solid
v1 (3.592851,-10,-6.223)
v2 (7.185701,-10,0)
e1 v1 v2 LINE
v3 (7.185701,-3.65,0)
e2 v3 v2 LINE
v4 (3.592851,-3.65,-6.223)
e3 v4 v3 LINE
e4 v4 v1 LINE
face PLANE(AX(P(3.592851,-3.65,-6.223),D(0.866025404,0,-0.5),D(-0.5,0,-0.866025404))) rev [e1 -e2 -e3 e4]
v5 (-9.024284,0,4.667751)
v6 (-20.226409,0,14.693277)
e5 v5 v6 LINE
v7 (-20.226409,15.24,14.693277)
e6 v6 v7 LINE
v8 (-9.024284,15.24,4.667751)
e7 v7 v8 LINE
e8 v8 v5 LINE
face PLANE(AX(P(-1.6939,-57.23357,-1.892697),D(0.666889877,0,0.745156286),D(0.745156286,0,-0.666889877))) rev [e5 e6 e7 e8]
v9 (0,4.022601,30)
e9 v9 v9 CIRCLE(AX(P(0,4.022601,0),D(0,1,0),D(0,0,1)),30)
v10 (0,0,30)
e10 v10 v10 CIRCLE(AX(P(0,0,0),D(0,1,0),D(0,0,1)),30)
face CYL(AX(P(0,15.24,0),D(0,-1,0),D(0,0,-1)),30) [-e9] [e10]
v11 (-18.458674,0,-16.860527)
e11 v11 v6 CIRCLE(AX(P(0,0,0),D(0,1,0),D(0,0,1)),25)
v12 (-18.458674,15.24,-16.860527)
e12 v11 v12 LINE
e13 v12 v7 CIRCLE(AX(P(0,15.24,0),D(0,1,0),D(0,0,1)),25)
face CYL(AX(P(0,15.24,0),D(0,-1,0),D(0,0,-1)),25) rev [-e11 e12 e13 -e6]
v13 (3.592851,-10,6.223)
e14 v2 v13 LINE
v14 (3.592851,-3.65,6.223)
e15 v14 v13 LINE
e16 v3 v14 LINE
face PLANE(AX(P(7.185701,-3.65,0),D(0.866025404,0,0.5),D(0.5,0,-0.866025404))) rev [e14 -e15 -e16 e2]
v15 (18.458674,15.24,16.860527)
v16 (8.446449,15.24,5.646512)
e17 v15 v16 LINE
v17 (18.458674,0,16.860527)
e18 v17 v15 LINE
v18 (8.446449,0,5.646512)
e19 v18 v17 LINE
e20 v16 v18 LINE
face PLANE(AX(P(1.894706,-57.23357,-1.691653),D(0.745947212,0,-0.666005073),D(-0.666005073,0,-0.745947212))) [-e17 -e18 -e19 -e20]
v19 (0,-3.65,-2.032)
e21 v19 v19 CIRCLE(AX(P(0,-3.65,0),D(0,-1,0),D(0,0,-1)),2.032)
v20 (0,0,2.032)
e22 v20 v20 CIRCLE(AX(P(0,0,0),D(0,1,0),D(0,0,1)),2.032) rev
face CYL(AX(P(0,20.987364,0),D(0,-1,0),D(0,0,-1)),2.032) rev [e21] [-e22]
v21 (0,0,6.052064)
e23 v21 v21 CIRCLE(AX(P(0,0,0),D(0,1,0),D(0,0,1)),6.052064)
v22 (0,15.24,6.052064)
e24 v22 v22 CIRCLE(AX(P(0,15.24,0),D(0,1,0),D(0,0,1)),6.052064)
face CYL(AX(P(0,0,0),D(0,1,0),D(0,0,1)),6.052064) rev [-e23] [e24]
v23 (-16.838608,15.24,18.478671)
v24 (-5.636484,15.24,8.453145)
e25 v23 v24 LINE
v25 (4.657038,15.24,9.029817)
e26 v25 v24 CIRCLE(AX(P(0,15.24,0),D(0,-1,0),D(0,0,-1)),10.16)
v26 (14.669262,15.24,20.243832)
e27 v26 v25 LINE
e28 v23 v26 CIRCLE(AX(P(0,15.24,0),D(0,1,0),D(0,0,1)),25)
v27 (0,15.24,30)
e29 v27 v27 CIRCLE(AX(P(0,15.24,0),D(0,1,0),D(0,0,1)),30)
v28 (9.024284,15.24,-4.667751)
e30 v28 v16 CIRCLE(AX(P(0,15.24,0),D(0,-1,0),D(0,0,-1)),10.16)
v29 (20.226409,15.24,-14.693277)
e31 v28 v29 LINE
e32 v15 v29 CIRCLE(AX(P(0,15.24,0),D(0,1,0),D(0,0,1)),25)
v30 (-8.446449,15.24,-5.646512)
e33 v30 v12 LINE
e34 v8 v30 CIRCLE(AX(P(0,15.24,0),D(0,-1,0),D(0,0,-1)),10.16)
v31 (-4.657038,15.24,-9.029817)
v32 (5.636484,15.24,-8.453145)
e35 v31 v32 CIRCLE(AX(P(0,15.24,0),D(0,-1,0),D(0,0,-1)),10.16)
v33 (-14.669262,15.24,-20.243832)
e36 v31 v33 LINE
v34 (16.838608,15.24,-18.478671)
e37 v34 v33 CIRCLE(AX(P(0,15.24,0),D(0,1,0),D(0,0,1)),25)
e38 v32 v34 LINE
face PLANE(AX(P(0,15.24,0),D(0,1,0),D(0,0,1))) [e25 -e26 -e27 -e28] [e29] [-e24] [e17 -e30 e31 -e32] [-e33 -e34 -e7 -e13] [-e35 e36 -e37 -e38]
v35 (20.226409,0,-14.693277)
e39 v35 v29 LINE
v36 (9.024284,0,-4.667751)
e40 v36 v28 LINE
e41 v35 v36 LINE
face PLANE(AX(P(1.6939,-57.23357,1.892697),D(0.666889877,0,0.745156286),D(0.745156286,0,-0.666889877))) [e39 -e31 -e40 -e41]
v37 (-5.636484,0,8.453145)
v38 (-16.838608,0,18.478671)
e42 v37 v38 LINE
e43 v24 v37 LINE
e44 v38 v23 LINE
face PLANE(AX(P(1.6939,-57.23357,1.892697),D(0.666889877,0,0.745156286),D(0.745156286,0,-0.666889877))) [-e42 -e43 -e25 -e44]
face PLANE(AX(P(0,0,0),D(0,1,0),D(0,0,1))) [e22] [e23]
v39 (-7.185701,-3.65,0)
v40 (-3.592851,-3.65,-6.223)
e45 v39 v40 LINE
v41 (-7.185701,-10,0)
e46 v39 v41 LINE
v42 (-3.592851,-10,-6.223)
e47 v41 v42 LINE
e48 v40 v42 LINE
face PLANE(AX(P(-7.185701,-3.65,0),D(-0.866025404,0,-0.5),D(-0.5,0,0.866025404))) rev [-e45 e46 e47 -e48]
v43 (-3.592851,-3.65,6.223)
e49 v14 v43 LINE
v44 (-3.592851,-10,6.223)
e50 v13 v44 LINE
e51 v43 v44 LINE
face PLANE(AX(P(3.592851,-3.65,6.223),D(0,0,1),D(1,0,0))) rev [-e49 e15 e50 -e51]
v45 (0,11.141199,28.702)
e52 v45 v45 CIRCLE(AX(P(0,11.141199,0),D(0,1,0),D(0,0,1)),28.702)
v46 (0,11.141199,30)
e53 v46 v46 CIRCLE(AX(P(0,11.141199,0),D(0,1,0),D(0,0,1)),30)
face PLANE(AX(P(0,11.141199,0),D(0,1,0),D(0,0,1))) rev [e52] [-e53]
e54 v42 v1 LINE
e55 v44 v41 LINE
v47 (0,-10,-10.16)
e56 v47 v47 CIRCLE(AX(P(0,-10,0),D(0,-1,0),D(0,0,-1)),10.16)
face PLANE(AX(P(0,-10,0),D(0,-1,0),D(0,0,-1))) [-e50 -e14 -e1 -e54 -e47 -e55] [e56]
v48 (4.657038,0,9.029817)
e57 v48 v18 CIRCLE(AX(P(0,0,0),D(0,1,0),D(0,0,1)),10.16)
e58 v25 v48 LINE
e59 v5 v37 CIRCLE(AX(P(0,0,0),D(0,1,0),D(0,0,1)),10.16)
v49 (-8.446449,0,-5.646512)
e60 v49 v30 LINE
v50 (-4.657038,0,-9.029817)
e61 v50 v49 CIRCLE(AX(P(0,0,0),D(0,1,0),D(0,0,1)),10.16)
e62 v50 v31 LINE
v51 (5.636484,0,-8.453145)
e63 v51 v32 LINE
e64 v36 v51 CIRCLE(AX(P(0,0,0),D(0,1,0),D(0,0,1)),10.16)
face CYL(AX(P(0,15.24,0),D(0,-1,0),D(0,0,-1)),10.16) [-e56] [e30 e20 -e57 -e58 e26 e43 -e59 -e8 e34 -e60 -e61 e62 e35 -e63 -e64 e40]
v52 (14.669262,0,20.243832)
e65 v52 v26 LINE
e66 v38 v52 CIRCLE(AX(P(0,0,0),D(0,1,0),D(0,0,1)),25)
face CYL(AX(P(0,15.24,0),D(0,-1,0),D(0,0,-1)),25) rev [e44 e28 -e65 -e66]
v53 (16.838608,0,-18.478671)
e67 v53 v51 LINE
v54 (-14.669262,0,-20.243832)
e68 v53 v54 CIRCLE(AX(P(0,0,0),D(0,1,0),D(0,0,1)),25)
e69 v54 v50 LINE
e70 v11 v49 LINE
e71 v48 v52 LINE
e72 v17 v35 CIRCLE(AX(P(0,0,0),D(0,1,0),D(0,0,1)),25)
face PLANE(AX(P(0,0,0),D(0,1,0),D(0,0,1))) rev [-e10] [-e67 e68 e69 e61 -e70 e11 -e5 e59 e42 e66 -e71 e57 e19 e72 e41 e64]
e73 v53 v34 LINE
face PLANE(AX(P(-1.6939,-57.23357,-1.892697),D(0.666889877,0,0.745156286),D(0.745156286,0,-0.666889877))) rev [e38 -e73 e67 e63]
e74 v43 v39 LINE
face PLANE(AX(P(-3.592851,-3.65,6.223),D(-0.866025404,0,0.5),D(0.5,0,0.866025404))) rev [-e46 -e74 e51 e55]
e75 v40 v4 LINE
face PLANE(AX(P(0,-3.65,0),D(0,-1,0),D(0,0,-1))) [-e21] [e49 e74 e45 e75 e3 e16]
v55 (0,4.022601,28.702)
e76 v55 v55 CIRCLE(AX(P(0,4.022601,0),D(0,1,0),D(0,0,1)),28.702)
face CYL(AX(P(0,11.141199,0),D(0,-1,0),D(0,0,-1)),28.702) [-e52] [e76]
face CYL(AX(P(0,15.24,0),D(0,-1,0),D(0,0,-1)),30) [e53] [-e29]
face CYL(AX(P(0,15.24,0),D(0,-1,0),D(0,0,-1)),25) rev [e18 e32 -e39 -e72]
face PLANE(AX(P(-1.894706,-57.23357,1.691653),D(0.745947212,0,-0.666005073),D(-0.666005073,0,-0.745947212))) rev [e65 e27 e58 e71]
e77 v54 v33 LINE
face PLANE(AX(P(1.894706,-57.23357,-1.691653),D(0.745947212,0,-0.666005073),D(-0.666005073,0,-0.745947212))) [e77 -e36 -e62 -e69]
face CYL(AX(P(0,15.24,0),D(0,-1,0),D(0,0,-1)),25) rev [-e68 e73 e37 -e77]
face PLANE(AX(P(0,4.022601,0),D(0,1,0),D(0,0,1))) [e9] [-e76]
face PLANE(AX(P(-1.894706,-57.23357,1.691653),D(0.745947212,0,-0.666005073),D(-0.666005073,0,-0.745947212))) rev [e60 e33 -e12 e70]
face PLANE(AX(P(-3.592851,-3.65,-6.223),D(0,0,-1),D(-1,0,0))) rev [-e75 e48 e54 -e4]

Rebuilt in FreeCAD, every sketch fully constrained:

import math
import FreeCAD as App
import Part
import Sketcher
Q = App.Units.Quantity


def add_polygon(sketch, points):
    """Adds a closed chain of lines whose ends are joined by coincident constraints."""
    first, n = sketch.GeometryCount, len(points)
    for a, b in zip(points, points[1:] + points[:1]):
        sketch.addGeometry(Part.LineSegment(App.Vector(*a, 0), App.Vector(*b, 0)), False)
    for i in range(n):
        sketch.addConstraint(Sketcher.Constraint("Coincident", first + i, 2, first + (i + 1) % n, 1))

doc = App.newDocument("Part")
body = doc.addObject("PartDesign::Body", "Body")

# Sketch on XZ plane
sketch1 = body.newObject("Sketcher::SketchObject", "Sketch")
sketch1.AttachmentSupport = (doc.getObject("XZ_Plane"), [""])
sketch1.MapMode = "FlatFace"
sketch1.addGeometry([
    Part.Circle(App.Vector(0, 0, 0), App.Vector(0, 0, 1), 30),
    Part.Circle(App.Vector(0, 0, 0), App.Vector(0, 0, 1), 25),
], False)
sketch1.addConstraint([
    Sketcher.Constraint("Coincident", 0, 3, -1, 1),
    Sketcher.Constraint("Coincident", 1, 3, -1, 1),
    Sketcher.Constraint("Diameter", 0, 60.0),
    Sketcher.Constraint("Diameter", 1, 50.0),
])
pad1 = body.newObject("PartDesign::Pad", "Pad")
pad1.Profile = sketch1
pad1.Length = Q("0.6 in")
pad1.Reversed = True

# Sketch on XZ plane
sketch2 = body.newObject("Sketcher::SketchObject", "Sketch001")
sketch2.AttachmentSupport = (doc.getObject("XZ_Plane"), [""])
sketch2.MapMode = "FlatFace"
sketch2.AttachmentOffset = App.Placement(App.Vector(0, 0, -0.6 * 25.4), App.Rotation())
sketch2.addGeometry([
    Part.LineSegment(App.Vector(4, 0, 0), App.Vector(20, -15, 0)),  # 0
    Part.ArcOfCircle(Part.Circle(App.Vector(0, 0, 0), App.Vector(0, 0, 1), 25), math.radians(-47.66), math.radians(-36)),  # 1
    Part.LineSegment(App.Vector(17, -18, 0), App.Vector(0, -4, 0)),  # 2
    Part.LineSegment(App.Vector(0, -4, 0), App.Vector(-15, -20, 0)),  # 3
    Part.ArcOfCircle(Part.Circle(App.Vector(0, 0, 0), App.Vector(0, 0, 1), 25), math.radians(-137.59), math.radians(-125.93)),  # 4
    Part.LineSegment(App.Vector(-18, -17, 0), App.Vector(-4, 0, 0)),  # 5
    Part.LineSegment(App.Vector(-4, 0, 0), App.Vector(-20, 15, 0)),  # 6
    Part.ArcOfCircle(Part.Circle(App.Vector(0, 0, 0), App.Vector(0, 0, 1), 25), math.radians(132.34), math.radians(144)),  # 7
    Part.LineSegment(App.Vector(-17, 18, 0), App.Vector(0, 4, 0)),  # 8
    Part.LineSegment(App.Vector(0, 4, 0), App.Vector(15, 20, 0)),  # 9
    Part.ArcOfCircle(Part.Circle(App.Vector(0, 0, 0), App.Vector(0, 0, 1), 25), math.radians(42.41), math.radians(54.07)),  # 10
    Part.LineSegment(App.Vector(18, 17, 0), App.Vector(4, 0, 0)),  # 11
], False)
sketch2.addConstraint([
    Sketcher.Constraint("Coincident", 0, 2, 1, 2),
    Sketcher.Constraint("Coincident", 1, 1, 2, 1),
    Sketcher.Constraint("Coincident", 2, 2, 3, 1),
    Sketcher.Constraint("Coincident", 3, 2, 4, 2),
    Sketcher.Constraint("Coincident", 4, 1, 5, 1),
    Sketcher.Constraint("Coincident", 5, 2, 6, 1),
    Sketcher.Constraint("Coincident", 6, 2, 7, 2),
    Sketcher.Constraint("Coincident", 7, 1, 8, 1),
    Sketcher.Constraint("Coincident", 8, 2, 9, 1),
    Sketcher.Constraint("Coincident", 9, 2, 10, 2),
    Sketcher.Constraint("Coincident", 10, 1, 11, 1),
    Sketcher.Constraint("Coincident", 11, 2, 0, 1),
    Sketcher.Constraint("Coincident", 1, 3, -1, 1),
    Sketcher.Constraint("Coincident", 4, 3, -1, 1),
    Sketcher.Constraint("Coincident", 7, 3, -1, 1),
    Sketcher.Constraint("Coincident", 10, 3, -1, 1),
    Sketcher.Constraint("Equal", 1, 4),
    Sketcher.Constraint("Equal", 4, 7),
    Sketcher.Constraint("Equal", 7, 10),
    Sketcher.Constraint("Symmetric", 2, 2, 8, 2, -1, 1),
    Sketcher.Constraint("Symmetric", 5, 2, 11, 2, -1, 1),
    Sketcher.Constraint("Parallel", 0, 2),
    Sketcher.Constraint("Parallel", 3, 5),
    Sketcher.Constraint("Parallel", 2, 6),
    Sketcher.Constraint("Parallel", 6, 8),
    Sketcher.Constraint("Parallel", 5, 9),
    Sketcher.Constraint("Parallel", 9, 11),
    Sketcher.Constraint("Equal", 2, 3),
    Sketcher.Constraint("Equal", 0, 5),
    Sketcher.Constraint("Radius", 1, 25.0),
    Sketcher.Constraint("DistanceX", 1, 1, 0, 2, 3.387801),
    Sketcher.Constraint("DistanceX", -1, 1, 0, 2, 20.226409),
    Sketcher.Constraint("DistanceY", 2, 2, -1, 1, 3.588609),
    Sketcher.Constraint("DistanceX", 3, 2, 4, 3, 14.669262),
])
pad2 = body.newObject("PartDesign::Pad", "Pad001")
pad2.Profile = sketch2
pad2.Length = Q("0.6 in")

# Sketch on XZ plane
sketch3 = body.newObject("Sketcher::SketchObject", "Sketch002")
sketch3.AttachmentSupport = (doc.getObject("XZ_Plane"), [""])
sketch3.MapMode = "FlatFace"
sketch3.addGeometry(Part.Circle(App.Vector(0, 0, 0), App.Vector(0, 0, 1), 10), False)
sketch3.addConstraint([
    Sketcher.Constraint("Coincident", 0, 3, -1, 1),
    Sketcher.Constraint("Diameter", 0, Q("0.8 in")),
])
pad3 = body.newObject("PartDesign::Pad", "Pad002")
pad3.Profile = sketch3
pad3.Type = "TwoLengths"
pad3.Length = 10
pad3.Length2 = Q("0.6 in")

# Sketch on XZ plane
sketch4 = body.newObject("Sketcher::SketchObject", "Sketch003")
sketch4.AttachmentSupport = (doc.getObject("XZ_Plane"), [""])
sketch4.MapMode = "FlatFace"
sketch4.AttachmentOffset = App.Placement(App.Vector(0, 0, -0.4035 * 25.4), App.Rotation())
sketch4.addGeometry([
    Part.Circle(App.Vector(0, 0, 0), App.Vector(0, 0, 1), 38),
    Part.Circle(App.Vector(0, 0, 0), App.Vector(0, 0, 1), 29),
], False)
sketch4.addConstraint([
    Sketcher.Constraint("Coincident", 0, 3, -1, 1),
    Sketcher.Constraint("Coincident", 1, 3, -1, 1),
    Sketcher.Constraint("Diameter", 0, Q("3 in")),
    Sketcher.Constraint("Diameter", 1, Q("2.26 in")),
])
pocket1 = body.newObject("PartDesign::Pocket", "Pocket")
pocket1.Profile = sketch4
pocket1.Type = "TwoLengths"
pocket1.Length = 0.892299
pocket1.Length2 = 6.226299

# Sketch on XZ plane
sketch5 = body.newObject("Sketcher::SketchObject", "Sketch004")
sketch5.AttachmentSupport = (doc.getObject("XZ_Plane"), [""])
sketch5.MapMode = "FlatFace"
sketch5.AttachmentOffset = App.Placement(App.Vector(0, 0, 10), App.Rotation())
add_polygon(sketch5, [(7, 0), (4, 6), (-4, 6), (-7, 0), (-4, -6), (4, -6)])  # lines 0-5
sketch5.addConstraint([
    Sketcher.Constraint("Horizontal", 1),
    Sketcher.Constraint("Horizontal", 4),
    Sketcher.Constraint("Symmetric", 0, 2, 3, 2, -1, 1),
    Sketcher.Constraint("Symmetric", 2, 2, 5, 2, -1, 1),
    Sketcher.Constraint("PointOnObject", 2, 2, -1),
    Sketcher.Constraint("Parallel", 2, 5),
    Sketcher.Constraint("Vertical", 1, 2, 3, 2),
    Sketcher.Constraint("Angle", 0, Q("120 deg")),
    Sketcher.Constraint("DistanceY", 3, 2, 1, 2, Q("0.49 in")),
    Sketcher.Constraint("DistanceX", 1, 2, 1, 1, 7.185701),
])
pocket2 = body.newObject("PartDesign::Pocket", "Pocket001")
pocket2.Profile = sketch5
pocket2.Length = Q("0.25 in")

# Sketch on XZ plane
sketch6 = body.newObject("Sketcher::SketchObject", "Sketch005")
sketch6.AttachmentSupport = (doc.getObject("XZ_Plane"), [""])
sketch6.MapMode = "FlatFace"
sketch6.AttachmentOffset = App.Placement(App.Vector(0, 0, 3.65), App.Rotation())
sketch6.addGeometry(Part.Circle(App.Vector(0, 0, 0), App.Vector(0, 0, 1), 2), False)
sketch6.addConstraint([
    Sketcher.Constraint("Coincident", 0, 3, -1, 1),
    Sketcher.Constraint("Diameter", 0, Q("0.16 in")),
])
pocket3 = body.newObject("PartDesign::Pocket", "Pocket002")
pocket3.Profile = sketch6
pocket3.Length = 18.89

# Sketch on XZ plane
sketch7 = body.newObject("Sketcher::SketchObject", "Sketch006")
sketch7.AttachmentSupport = (doc.getObject("XZ_Plane"), [""])
sketch7.MapMode = "FlatFace"
sketch7.AttachmentOffset = App.Placement(App.Vector(0, 0, -0.6 * 25.4), App.Rotation())
sketch7.addGeometry(Part.Circle(App.Vector(0, 0, 0), App.Vector(0, 0, 1), 6), False)
sketch7.addConstraint([
    Sketcher.Constraint("Coincident", 0, 3, -1, 1),
    Sketcher.Constraint("Diameter", 0, 12.104129),
])
pocket4 = body.newObject("PartDesign::Pocket", "Pocket003")
pocket4.Profile = sketch7
pocket4.Length = Q("0.6 in")
pocket4.Reversed = True

doc.recompute()
